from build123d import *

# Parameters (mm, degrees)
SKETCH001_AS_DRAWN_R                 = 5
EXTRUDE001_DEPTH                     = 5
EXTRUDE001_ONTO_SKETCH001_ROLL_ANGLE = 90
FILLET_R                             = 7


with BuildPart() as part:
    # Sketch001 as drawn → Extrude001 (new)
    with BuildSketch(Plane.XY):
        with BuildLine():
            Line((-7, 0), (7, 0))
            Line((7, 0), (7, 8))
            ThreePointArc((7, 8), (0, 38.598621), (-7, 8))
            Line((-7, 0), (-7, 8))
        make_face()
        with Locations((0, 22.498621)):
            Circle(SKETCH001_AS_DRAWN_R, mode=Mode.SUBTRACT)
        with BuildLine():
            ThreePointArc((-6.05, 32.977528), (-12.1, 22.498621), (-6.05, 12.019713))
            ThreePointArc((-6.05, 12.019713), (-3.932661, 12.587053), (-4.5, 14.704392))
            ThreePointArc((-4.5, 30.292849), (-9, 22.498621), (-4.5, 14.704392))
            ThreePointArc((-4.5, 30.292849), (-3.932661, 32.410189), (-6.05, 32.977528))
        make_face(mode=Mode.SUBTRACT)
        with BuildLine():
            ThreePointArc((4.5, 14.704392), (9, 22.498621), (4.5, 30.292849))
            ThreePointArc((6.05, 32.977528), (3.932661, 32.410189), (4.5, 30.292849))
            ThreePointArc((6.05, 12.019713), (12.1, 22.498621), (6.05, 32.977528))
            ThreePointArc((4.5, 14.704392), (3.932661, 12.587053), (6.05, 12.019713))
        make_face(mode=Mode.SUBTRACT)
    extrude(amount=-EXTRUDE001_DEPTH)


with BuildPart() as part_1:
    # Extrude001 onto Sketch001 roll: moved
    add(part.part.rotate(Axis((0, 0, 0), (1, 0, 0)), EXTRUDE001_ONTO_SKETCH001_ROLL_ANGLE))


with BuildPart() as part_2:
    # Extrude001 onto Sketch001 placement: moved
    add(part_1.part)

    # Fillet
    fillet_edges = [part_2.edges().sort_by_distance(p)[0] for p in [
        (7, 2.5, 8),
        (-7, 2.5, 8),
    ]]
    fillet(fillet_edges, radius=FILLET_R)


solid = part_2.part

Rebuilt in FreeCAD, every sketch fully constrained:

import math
import FreeCAD as App
import Part
import Sketcher
from FreeCAD import Vector


def edges_at(feature, points):
    """Names of the edges that pass closest to the given points."""
    edges = feature.Shape.Edges
    near = lambda p: min(range(len(edges)), key=lambda i: edges[i].distToShape(Part.Vertex(*p))[0])
    return sorted({f"Edge{near(p) + 1}" for p in points})

doc = App.newDocument("Part")
params = doc.addObject("Spreadsheet::Sheet", "Params")
for row, (alias, value) in enumerate([
    ("sketch1_diameter", "10 mm"),
    ("sketch1_radius", "9 mm"),
    ("sketch1_radius2", "16.1 mm"),
    ("sketch1_radius3", "12.1 mm"),
    ("sketch1_width", "14 mm"),
    ("pad1_length", "5 mm"),
    ("fillet_radius", "7 mm"),
], start=1):
    params.set(f"A{row}", alias)
    params.set(f"B{row}", "=" + value)
    params.setAlias(f"B{row}", alias)

body = doc.addObject("PartDesign::Body", "Body")

sketch1 = doc.addObject("Sketcher::SketchObject", "Sketch")
body.addObject(sketch1)
sketch1.AttachmentSupport = (doc.XY_Plane, [""])
sketch1.MapMode = "FlatFace"
sketch1.addGeometry([
    Part.LineSegment(Vector(-7, 0, 0), Vector(7, 0, 0)),
    Part.LineSegment(Vector(7, 0, 0), Vector(7, 8, 0)),
    Part.ArcOfCircle(Part.Circle(Vector(0, 22.5, 0), Vector(0, 0, 1), 16.1), math.radians(-64), math.radians(244)),
    Part.LineSegment(Vector(-7, 8, 0), Vector(-7, 0, 0)),
    Part.ArcOfCircle(Part.Circle(Vector(0, 22.5, 0), Vector(0, 0, 1), 12.1), math.radians(120), math.radians(240)),
    Part.ArcOfCircle(Part.Circle(Vector(-5.3, 31.6, 0), Vector(0, 0, 1), 1.6), math.radians(-60), math.radians(120)),
    Part.ArcOfCircle(Part.Circle(Vector(0, 22.5, 0), Vector(0, 0, 1), 9), math.radians(120), math.radians(240)),
    Part.ArcOfCircle(Part.Circle(Vector(-5.3, 13.4, 0), Vector(0, 0, 1), 1.6), math.radians(-120), math.radians(60)),
    Part.Circle(Vector(0, 22.5, 0), Vector(0, 0, 1), 5),
    Part.ArcOfCircle(Part.Circle(Vector(5.3, 13.4, 0), Vector(0, 0, 1), 1.6), math.radians(120), math.radians(300)),
    Part.ArcOfCircle(Part.Circle(Vector(0, 22.5, 0), Vector(0, 0, 1), 9), math.radians(-60), math.radians(60)),
    Part.ArcOfCircle(Part.Circle(Vector(5.3, 31.6, 0), Vector(0, 0, 1), 1.6), math.radians(60), math.radians(240)),
    Part.ArcOfCircle(Part.Circle(Vector(0, 22.5, 0), Vector(0, 0, 1), 12.1), math.radians(-60), math.radians(60)),
], False)
sketch1.addConstraint([
    Sketcher.Constraint("Coincident", 0, 2, 1, 1),
    Sketcher.Constraint("Coincident", 1, 2, 2, 1),
    Sketcher.Constraint("Coincident", 2, 2, 3, 1),
    Sketcher.Constraint("Coincident", 3, 2, 0, 1),
    Sketcher.Constraint("Tangent", 4, 1, 5, 2),
    Sketcher.Constraint("Tangent", 5, 1, 6, 1),
    Sketcher.Constraint("Tangent", 6, 2, 7, 2),
    Sketcher.Constraint("Tangent", 7, 1, 4, 2),
    Sketcher.Constraint("Tangent", 9, 1, 10, 1),
    Sketcher.Constraint("Tangent", 10, 2, 11, 2),
    Sketcher.Constraint("Tangent", 11, 1, 12, 2),
    Sketcher.Constraint("Tangent", 12, 1, 9, 2),
    Sketcher.Constraint("Horizontal", 0),
    Sketcher.Constraint("Vertical", 1),
    Sketcher.Constraint("Vertical", 3),
    Sketcher.Constraint("Coincident", 4, 3, 2, 3),
    Sketcher.Constraint("Coincident", 6, 3, 2, 3),
    Sketcher.Constraint("Coincident", 8, 3, 2, 3),
    Sketcher.Constraint("Coincident", 10, 3, 2, 3),
    Sketcher.Constraint("Coincident", 12, 3, 2, 3),
    Sketcher.Constraint("Equal", 7, 9),
    Sketcher.Constraint("Equal", 6, 10),
    Sketcher.Constraint("Symmetric", 0, 2, 3, 2, -1, 1),
    Sketcher.Constraint("Symmetric", 7, 3, 9, 3, -2),
    Sketcher.Constraint("Horizontal", 5, 3, 11, 3),
    Sketcher.Constraint("Vertical", 5, 3, 7, 3),
    Sketcher.Constraint("Diameter", 8, 10.0),
    Sketcher.Constraint("Radius", 6, 9.0),
    Sketcher.Constraint("Radius", 2, 16.1),
    Sketcher.Constraint("Radius", 4, 12.1),
    Sketcher.Constraint("DistanceX", 0, 1, 0, 2, 14.0),
    Sketcher.Constraint("DistanceY", 1, 1, 1, 2, 8.0),
    Sketcher.Constraint("DistanceX", 5, 1, -1, 1, 4.5),
])
sketch1.setExpression("Constraints[26]", "Params.sketch1_diameter")
sketch1.setExpression("Constraints[27]", "Params.sketch1_radius")
sketch1.setExpression("Constraints[28]", "Params.sketch1_radius2")
sketch1.setExpression("Constraints[29]", "Params.sketch1_radius3")
sketch1.setExpression("Constraints[30]", "Params.sketch1_width")
pad1 = doc.addObject("PartDesign::Pad", "Pad")
body.addObject(pad1)
pad1.Profile = sketch1
pad1.setExpression("Length", "Params.pad1_length")
pad1.Reversed = True
body2 = doc.addObject("PartDesign::Body", "Body001")
doc.recompute()

body.Placement = App.Placement(Vector(0, 0, 0), App.Rotation(Vector(1, 0, 0), 90))
boolean = doc.addObject("PartDesign::Boolean", "Boolean")
body2.addObject(boolean)
boolean.Type = "Fuse"
boolean.addObjects([body])
doc.recompute()

fillet = doc.addObject("PartDesign::Fillet", "Fillet")
body2.addObject(fillet)
fillet.Base = (boolean, edges_at(boolean, [(7, 2.5, 8), (-7, 2.5, 8)]))
fillet.setExpression("Radius", "Params.fillet_radius")

doc.recompute()
